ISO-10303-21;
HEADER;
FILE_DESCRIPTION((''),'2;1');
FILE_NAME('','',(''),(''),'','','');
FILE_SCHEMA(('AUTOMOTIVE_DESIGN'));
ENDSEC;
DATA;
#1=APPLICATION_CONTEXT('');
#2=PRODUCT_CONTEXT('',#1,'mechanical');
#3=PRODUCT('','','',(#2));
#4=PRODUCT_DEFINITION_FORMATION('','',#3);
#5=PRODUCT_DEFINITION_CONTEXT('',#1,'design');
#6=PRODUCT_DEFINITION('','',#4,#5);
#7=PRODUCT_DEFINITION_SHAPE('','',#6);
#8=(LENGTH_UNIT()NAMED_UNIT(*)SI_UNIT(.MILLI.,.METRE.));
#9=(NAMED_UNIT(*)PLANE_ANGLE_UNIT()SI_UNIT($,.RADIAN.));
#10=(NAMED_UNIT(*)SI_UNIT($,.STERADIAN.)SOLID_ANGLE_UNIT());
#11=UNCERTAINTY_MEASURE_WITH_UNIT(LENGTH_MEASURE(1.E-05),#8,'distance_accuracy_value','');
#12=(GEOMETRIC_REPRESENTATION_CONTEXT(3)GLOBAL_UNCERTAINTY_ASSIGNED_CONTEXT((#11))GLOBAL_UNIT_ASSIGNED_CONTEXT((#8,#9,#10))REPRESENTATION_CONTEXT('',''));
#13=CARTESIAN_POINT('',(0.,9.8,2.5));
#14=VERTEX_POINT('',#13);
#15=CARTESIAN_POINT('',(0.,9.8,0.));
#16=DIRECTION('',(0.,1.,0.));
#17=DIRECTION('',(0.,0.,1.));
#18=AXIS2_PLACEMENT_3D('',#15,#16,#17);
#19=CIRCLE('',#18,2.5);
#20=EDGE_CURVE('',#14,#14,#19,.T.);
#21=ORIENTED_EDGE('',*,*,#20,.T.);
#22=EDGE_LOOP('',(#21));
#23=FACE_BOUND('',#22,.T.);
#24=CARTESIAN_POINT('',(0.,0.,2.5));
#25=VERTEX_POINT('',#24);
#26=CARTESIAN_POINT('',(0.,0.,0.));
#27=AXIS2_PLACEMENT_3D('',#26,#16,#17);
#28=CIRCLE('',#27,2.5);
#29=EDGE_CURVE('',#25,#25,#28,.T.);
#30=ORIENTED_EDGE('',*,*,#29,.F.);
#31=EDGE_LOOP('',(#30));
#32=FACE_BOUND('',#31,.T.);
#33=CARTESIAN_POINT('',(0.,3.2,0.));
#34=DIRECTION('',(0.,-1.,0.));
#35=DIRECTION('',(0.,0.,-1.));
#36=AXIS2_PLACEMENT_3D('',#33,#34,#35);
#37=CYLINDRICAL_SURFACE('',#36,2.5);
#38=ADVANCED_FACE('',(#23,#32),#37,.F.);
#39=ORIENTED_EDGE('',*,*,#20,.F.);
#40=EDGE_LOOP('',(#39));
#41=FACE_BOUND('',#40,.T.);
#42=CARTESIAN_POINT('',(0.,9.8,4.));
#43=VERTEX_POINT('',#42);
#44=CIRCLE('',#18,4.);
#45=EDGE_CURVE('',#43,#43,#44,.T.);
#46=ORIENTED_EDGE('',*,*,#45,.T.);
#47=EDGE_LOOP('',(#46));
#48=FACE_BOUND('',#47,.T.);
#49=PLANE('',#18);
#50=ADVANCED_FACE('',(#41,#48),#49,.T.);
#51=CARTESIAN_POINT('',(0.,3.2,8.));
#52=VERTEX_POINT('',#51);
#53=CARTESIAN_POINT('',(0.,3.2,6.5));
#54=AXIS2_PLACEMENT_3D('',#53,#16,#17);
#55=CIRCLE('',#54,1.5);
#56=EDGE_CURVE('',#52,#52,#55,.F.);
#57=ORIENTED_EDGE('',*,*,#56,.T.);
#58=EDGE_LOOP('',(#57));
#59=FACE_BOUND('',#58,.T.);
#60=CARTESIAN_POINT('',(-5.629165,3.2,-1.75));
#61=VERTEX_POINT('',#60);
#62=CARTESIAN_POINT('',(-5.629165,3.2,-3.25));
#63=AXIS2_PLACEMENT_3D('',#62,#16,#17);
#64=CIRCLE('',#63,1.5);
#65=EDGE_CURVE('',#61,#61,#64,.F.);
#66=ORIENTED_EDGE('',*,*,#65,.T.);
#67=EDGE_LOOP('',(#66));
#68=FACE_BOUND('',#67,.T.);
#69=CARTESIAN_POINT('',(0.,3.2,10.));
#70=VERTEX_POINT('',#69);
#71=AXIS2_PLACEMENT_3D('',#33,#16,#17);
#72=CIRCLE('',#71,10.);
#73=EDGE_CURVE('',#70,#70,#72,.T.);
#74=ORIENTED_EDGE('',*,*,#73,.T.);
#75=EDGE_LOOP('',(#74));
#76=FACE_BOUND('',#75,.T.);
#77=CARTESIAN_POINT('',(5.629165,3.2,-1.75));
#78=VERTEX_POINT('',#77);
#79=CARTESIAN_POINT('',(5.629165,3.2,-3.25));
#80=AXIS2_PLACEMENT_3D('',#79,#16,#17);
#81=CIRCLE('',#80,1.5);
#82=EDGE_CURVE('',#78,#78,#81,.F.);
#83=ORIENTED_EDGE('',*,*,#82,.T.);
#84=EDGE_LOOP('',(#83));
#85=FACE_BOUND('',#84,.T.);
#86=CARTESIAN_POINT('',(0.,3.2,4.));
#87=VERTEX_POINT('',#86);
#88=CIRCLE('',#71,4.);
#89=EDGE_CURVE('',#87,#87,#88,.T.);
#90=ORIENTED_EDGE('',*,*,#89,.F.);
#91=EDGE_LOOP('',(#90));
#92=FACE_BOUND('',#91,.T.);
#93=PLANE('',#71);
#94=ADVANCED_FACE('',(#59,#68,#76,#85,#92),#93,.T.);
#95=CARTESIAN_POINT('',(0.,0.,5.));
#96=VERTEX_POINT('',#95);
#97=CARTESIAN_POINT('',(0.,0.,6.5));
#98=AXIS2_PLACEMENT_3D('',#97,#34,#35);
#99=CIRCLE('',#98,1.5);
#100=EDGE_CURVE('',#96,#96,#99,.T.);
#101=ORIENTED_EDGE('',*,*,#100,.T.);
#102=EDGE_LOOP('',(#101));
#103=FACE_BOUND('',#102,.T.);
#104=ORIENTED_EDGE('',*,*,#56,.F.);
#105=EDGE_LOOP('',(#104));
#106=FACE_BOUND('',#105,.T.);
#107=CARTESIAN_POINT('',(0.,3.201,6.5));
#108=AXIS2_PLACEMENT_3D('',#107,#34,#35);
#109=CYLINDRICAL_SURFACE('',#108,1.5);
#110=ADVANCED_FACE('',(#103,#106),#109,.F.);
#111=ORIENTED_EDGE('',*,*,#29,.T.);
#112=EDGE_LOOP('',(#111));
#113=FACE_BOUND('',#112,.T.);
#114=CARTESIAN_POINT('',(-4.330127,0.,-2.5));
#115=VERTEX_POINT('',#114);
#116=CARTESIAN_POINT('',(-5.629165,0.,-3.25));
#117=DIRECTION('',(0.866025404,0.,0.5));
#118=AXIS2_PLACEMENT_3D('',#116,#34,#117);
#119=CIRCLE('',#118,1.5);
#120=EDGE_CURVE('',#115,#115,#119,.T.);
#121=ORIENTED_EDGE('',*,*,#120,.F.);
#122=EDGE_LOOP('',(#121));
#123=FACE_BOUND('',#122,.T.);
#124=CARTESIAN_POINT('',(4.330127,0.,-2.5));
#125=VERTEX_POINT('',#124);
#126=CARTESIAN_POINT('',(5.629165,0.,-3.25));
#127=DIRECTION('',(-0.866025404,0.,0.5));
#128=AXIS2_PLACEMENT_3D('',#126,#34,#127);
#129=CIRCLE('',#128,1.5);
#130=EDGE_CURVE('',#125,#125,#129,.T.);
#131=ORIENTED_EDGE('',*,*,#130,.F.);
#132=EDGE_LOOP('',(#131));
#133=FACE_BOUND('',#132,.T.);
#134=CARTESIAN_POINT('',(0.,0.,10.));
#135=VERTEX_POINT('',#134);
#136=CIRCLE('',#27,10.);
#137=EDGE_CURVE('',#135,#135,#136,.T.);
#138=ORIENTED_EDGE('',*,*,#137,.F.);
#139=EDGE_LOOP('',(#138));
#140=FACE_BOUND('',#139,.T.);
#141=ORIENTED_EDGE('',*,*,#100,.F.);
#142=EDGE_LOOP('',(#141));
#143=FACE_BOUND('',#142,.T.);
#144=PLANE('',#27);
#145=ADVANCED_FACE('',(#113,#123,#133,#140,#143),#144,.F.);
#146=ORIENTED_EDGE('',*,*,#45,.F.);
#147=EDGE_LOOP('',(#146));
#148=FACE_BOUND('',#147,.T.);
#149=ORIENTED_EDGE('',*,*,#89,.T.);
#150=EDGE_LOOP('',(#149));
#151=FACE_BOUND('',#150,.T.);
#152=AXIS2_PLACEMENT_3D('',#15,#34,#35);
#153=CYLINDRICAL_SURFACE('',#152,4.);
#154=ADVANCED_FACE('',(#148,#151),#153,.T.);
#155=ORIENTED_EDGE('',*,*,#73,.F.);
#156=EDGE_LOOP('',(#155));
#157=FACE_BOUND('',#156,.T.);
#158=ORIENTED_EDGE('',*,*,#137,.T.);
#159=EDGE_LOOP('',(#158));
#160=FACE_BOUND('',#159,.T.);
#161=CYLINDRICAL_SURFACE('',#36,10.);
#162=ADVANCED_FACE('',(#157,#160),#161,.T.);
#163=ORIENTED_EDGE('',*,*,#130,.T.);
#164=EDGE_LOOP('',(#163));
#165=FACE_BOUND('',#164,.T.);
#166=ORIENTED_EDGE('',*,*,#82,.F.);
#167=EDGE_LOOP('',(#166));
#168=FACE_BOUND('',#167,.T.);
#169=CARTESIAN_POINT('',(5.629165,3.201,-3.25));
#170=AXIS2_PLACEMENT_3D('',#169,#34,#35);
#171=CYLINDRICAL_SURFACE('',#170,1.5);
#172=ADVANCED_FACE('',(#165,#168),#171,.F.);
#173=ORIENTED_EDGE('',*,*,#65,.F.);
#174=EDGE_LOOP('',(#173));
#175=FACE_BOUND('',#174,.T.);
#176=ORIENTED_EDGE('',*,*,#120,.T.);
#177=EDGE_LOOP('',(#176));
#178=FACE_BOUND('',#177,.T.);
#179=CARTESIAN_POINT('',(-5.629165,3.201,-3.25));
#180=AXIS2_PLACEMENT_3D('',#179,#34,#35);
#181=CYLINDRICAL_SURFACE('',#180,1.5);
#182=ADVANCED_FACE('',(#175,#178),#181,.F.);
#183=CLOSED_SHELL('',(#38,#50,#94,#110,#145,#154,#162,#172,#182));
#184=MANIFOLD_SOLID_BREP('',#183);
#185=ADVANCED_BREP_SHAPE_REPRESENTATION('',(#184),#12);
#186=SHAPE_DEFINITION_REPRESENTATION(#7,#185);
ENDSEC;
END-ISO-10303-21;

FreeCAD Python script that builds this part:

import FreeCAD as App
import Part
import Sketcher

doc = App.newDocument("Part")
params = doc.addObject("Spreadsheet::Sheet", "Params")
for row, (alias, value) in enumerate([
    ("sketch1_diameter", "20 mm"),
    ("sketch1_diameter2", "5 mm"),
    ("pad1_length", "3.2 mm"),
    ("sketch2_diameter", "3 mm"),
    ("pocket1_length", "3.2 mm"),
    ("sketch3_diameter", "8 mm"),
    ("sketch3_diameter2", "5 mm"),
    ("pad2_length", "6.6 mm"),
], start=1):
    params.set(f"A{row}", alias)
    params.set(f"B{row}", "=" + value)
    params.setAlias(f"B{row}", alias)

body = doc.addObject("PartDesign::Body", "Body")

# Sketch on XZ plane
sketch1 = body.newObject("Sketcher::SketchObject", "Sketch")
sketch1.AttachmentSupport = (doc.getObject("XZ_Plane"), [""])
sketch1.MapMode = "FlatFace"
sketch1.addGeometry(Part.Circle(App.Vector(0, 0, 0), App.Vector(0, 0, 1), 10), False)
sketch1.addGeometry(Part.Circle(App.Vector(0, 0, 0), App.Vector(0, 0, 1), 2.5), False)
sketch1.addConstraint(Sketcher.Constraint("Coincident", 0, 3, -1, 1))
sketch1.addConstraint(Sketcher.Constraint("Coincident", 1, 3, -1, 1))
sketch1.addConstraint(Sketcher.Constraint("Diameter", 0, 20.0))
sketch1.addConstraint(Sketcher.Constraint("Diameter", 1, 5.0))
sketch1.setExpression("Constraints[2]", "Params.sketch1_diameter")
sketch1.setExpression("Constraints[3]", "Params.sketch1_diameter2")
pad1 = body.newObject("PartDesign::Pad", "Pad")
pad1.Profile = sketch1
pad1.setExpression("Length", "Params.pad1_length")
pad1.Reversed = True

# Sketch on XZ plane
sketch2 = body.newObject("Sketcher::SketchObject", "Sketch001")
sketch2.AttachmentSupport = (doc.getObject("XZ_Plane"), [""])
sketch2.MapMode = "FlatFace"
sketch2.addGeometry(Part.Circle(App.Vector(0, 6.5, 0), App.Vector(0, 0, 1), 1.5), False)
sketch2.addConstraint(Sketcher.Constraint("PointOnObject", 0, 3, -2))
sketch2.addConstraint(Sketcher.Constraint("Diameter", 0, 3.0))
sketch2.addConstraint(Sketcher.Constraint("DistanceY", -1, 1, 0, 3, 6.5))
sketch2.setExpression("Constraints[1]", "Params.sketch2_diameter")
pocket1 = body.newObject("PartDesign::Pocket", "Pocket")
pocket1.Profile = sketch2
pocket1.setExpression("Length", "Params.pocket1_length")
doc.recompute()

polarpattern = body.newObject("PartDesign::PolarPattern", "PolarPattern")
polarpattern.Originals = [pocket1]
polarpattern.Axis = (doc.getObject("Y_Axis"), [""])
polarpattern.Angle = 360
polarpattern.Occurrences = 3
body.Tip = polarpattern

# Sketch on XZ plane
sketch3 = body.newObject("Sketcher::SketchObject", "Sketch002")
sketch3.AttachmentSupport = (doc.getObject("XZ_Plane"), [""])
sketch3.MapMode = "FlatFace"
sketch3.AttachmentOffset = App.Placement(App.Vector(0, 0, -3.2), App.Rotation())
sketch3.addGeometry(Part.Circle(App.Vector(0, 0, 0), App.Vector(0, 0, 1), 4), False)
sketch3.addGeometry(Part.Circle(App.Vector(0, 0, 0), App.Vector(0, 0, 1), 2.5), False)
sketch3.addConstraint(Sketcher.Constraint("Coincident", 0, 3, -1, 1))
sketch3.addConstraint(Sketcher.Constraint("Coincident", 1, 3, -1, 1))
sketch3.addConstraint(Sketcher.Constraint("Diameter", 0, 8.0))
sketch3.addConstraint(Sketcher.Constraint("Diameter", 1, 5.0))
sketch3.setExpression("Constraints[2]", "Params.sketch3_diameter")
sketch3.setExpression("Constraints[3]", "Params.sketch3_diameter2")
pad2 = body.newObject("PartDesign::Pad", "Pad001")
pad2.Profile = sketch3
pad2.setExpression("Length", "Params.pad2_length")
pad2.Reversed = True

doc.recompute()
